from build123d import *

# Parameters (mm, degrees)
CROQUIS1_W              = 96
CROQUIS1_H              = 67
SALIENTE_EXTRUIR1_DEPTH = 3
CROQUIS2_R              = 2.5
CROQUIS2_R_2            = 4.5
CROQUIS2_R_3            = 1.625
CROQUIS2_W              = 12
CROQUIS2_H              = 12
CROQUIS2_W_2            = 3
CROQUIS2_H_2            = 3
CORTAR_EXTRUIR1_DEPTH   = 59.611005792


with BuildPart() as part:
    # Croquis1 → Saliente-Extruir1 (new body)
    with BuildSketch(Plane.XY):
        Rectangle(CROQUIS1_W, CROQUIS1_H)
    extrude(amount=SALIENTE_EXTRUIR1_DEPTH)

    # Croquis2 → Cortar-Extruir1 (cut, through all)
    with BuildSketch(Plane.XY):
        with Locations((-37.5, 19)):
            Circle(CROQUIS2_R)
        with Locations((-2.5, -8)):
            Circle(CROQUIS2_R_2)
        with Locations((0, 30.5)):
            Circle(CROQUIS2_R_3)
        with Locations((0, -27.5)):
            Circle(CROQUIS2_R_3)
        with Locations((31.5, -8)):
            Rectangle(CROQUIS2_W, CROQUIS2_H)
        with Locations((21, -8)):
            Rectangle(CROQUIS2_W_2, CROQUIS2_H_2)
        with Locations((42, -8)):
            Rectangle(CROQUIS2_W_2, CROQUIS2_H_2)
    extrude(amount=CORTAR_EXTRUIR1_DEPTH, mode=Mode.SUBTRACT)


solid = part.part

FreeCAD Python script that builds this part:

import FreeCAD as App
import Part
import Sketcher
Q = App.Units.Quantity

doc = App.newDocument("Part")
body = doc.addObject("PartDesign::Body", "Body")

# Sketch on XY plane
sketch1 = body.newObject("Sketcher::SketchObject", "Sketch")
sketch1.AttachmentSupport = (doc.getObject("XY_Plane"), [""])
sketch1.MapMode = "FlatFace"
sketch1.addGeometry([
    Part.LineSegment(App.Vector(-48, 34, 0), App.Vector(-48, -34, 0)),
    Part.LineSegment(App.Vector(-48, -34, 0), App.Vector(48, -34, 0)),
    Part.LineSegment(App.Vector(48, -34, 0), App.Vector(48, 34, 0)),
    Part.LineSegment(App.Vector(48, 34, 0), App.Vector(-48, 34, 0)),
], False)
sketch1.addConstraint([
    Sketcher.Constraint("Coincident", 0, 2, 1, 1),
    Sketcher.Constraint("Coincident", 1, 2, 2, 1),
    Sketcher.Constraint("Coincident", 2, 2, 3, 1),
    Sketcher.Constraint("Coincident", 3, 2, 0, 1),
    Sketcher.Constraint("Vertical", 0),
    Sketcher.Constraint("Horizontal", 1),
    Sketcher.Constraint("Vertical", 2),
    Sketcher.Constraint("Horizontal", 3),
    Sketcher.Constraint("Symmetric", 0, 2, 2, 2, -1, 1),
    Sketcher.Constraint("DistanceX", 1, 1, 1, 2, Q("96 mm")),
    Sketcher.Constraint("DistanceY", 0, 2, 0, 1, Q("67 mm")),
])
pad1 = body.newObject("PartDesign::Pad", "Pad")
pad1.Profile = sketch1
pad1.Length = 3

# Sketch on XY plane
sketch2 = body.newObject("Sketcher::SketchObject", "Sketch001")
sketch2.AttachmentSupport = (doc.getObject("XY_Plane"), [""])
sketch2.MapMode = "FlatFace"
sketch2.addGeometry([
    Part.Circle(App.Vector(-37.5, 19, 0), App.Vector(0, 0, 1), 2.5),  # 0
    Part.Circle(App.Vector(-2.5, -8, 0), App.Vector(0, 0, 1), 4.5),  # 1
    Part.Circle(App.Vector(0, 30.5, 0), App.Vector(0, 0, 1), 1.6),  # 2
    Part.Circle(App.Vector(0, -27.5, 0), App.Vector(0, 0, 1), 1.6),  # 3
    Part.LineSegment(App.Vector(25.5, -2, 0), App.Vector(25.5, -14, 0)),  # 4
    Part.LineSegment(App.Vector(25.5, -14, 0), App.Vector(37.5, -14, 0)),  # 5
    Part.LineSegment(App.Vector(37.5, -14, 0), App.Vector(37.5, -2, 0)),  # 6
    Part.LineSegment(App.Vector(37.5, -2, 0), App.Vector(25.5, -2, 0)),  # 7
    Part.LineSegment(App.Vector(19.5, -6.5, 0), App.Vector(19.5, -9.5, 0)),  # 8
    Part.LineSegment(App.Vector(19.5, -9.5, 0), App.Vector(22.5, -9.5, 0)),  # 9
    Part.LineSegment(App.Vector(22.5, -9.5, 0), App.Vector(22.5, -6.5, 0)),  # 10
    Part.LineSegment(App.Vector(22.5, -6.5, 0), App.Vector(19.5, -6.5, 0)),  # 11
    Part.LineSegment(App.Vector(40.5, -6.5, 0), App.Vector(40.5, -9.5, 0)),  # 12
    Part.LineSegment(App.Vector(40.5, -9.5, 0), App.Vector(43.5, -9.5, 0)),  # 13
    Part.LineSegment(App.Vector(43.5, -9.5, 0), App.Vector(43.5, -6.5, 0)),  # 14
    Part.LineSegment(App.Vector(43.5, -6.5, 0), App.Vector(40.5, -6.5, 0)),  # 15
], False)
sketch2.addConstraint([
    Sketcher.Constraint("Coincident", 4, 2, 5, 1),
    Sketcher.Constraint("Coincident", 5, 2, 6, 1),
    Sketcher.Constraint("Coincident", 6, 2, 7, 1),
    Sketcher.Constraint("Coincident", 7, 2, 4, 1),
    Sketcher.Constraint("Coincident", 8, 2, 9, 1),
    Sketcher.Constraint("Coincident", 9, 2, 10, 1),
    Sketcher.Constraint("Coincident", 10, 2, 11, 1),
    Sketcher.Constraint("Coincident", 11, 2, 8, 1),
    Sketcher.Constraint("Coincident", 12, 2, 13, 1),
    Sketcher.Constraint("Coincident", 13, 2, 14, 1),
    Sketcher.Constraint("Coincident", 14, 2, 15, 1),
    Sketcher.Constraint("Coincident", 15, 2, 12, 1),
    Sketcher.Constraint("Vertical", 4),
    Sketcher.Constraint("Horizontal", 5),
    Sketcher.Constraint("Vertical", 6),
    Sketcher.Constraint("Horizontal", 7),
    Sketcher.Constraint("Vertical", 8),
    Sketcher.Constraint("Horizontal", 9),
    Sketcher.Constraint("Vertical", 10),
    Sketcher.Constraint("Horizontal", 11),
    Sketcher.Constraint("Vertical", 12),
    Sketcher.Constraint("Horizontal", 13),
    Sketcher.Constraint("Vertical", 14),
    Sketcher.Constraint("Horizontal", 15),
    Sketcher.Constraint("Equal", 2, 3),
    Sketcher.Constraint("PointOnObject", 2, 3, -2),
    Sketcher.Constraint("PointOnObject", 3, 3, -2),
    Sketcher.Constraint("Horizontal", 9, 2, 12, 2),
    Sketcher.Constraint("Horizontal", 11, 2, 14, 2),
    Sketcher.Constraint("Equal", 11, 13),
    Sketcher.Constraint("Equal", 7, 4),
    Sketcher.Constraint("Equal", 15, 8),
    Sketcher.Constraint("Diameter", 0, Q("5 mm")),
    Sketcher.Constraint("Diameter", 1, Q("9 mm")),
    Sketcher.Constraint("Diameter", 2, Q("3.25 mm")),
    Sketcher.Constraint("DistanceX", 5, 1, 5, 2, Q("12 mm")),
    Sketcher.Constraint("DistanceX", 9, 1, 9, 2, Q("3 mm")),
    Sketcher.Constraint("DistanceY", -1, 1, 0, 3, Q("19 mm")),
    Sketcher.Constraint("DistanceY", 1, 3, -1, 1, Q("8 mm")),
    Sketcher.Constraint("DistanceY", 4, 2, -1, 1, Q("14 mm")),
    Sketcher.Constraint("DistanceX", 0, 3, 1, 3, Q("35 mm")),
    Sketcher.Constraint("DistanceY", 3, 3, 2, 3, Q("58 mm")),
    Sketcher.Constraint("DistanceX", 1, 3, 4, 2, Q("28 mm")),
    Sketcher.Constraint("DistanceX", 8, 2, 4, 2, Q("6 mm")),
    Sketcher.Constraint("DistanceX", 5, 2, 12, 2, Q("3 mm")),
    Sketcher.Constraint("DistanceX", 0, 3, -1, 1, Q("37.5 mm")),
    Sketcher.Constraint("DistanceY", -1, 1, 2, 3, Q("30.5 mm")),
    Sketcher.Constraint("DistanceY", 8, 2, -1, 1, Q("9.5 mm")),
])
pocket1 = body.newObject("PartDesign::Pocket", "Pocket")
pocket1.Profile = sketch2
pocket1.Type = "ThroughAll"
pocket1.Reversed = True

doc.recompute()
